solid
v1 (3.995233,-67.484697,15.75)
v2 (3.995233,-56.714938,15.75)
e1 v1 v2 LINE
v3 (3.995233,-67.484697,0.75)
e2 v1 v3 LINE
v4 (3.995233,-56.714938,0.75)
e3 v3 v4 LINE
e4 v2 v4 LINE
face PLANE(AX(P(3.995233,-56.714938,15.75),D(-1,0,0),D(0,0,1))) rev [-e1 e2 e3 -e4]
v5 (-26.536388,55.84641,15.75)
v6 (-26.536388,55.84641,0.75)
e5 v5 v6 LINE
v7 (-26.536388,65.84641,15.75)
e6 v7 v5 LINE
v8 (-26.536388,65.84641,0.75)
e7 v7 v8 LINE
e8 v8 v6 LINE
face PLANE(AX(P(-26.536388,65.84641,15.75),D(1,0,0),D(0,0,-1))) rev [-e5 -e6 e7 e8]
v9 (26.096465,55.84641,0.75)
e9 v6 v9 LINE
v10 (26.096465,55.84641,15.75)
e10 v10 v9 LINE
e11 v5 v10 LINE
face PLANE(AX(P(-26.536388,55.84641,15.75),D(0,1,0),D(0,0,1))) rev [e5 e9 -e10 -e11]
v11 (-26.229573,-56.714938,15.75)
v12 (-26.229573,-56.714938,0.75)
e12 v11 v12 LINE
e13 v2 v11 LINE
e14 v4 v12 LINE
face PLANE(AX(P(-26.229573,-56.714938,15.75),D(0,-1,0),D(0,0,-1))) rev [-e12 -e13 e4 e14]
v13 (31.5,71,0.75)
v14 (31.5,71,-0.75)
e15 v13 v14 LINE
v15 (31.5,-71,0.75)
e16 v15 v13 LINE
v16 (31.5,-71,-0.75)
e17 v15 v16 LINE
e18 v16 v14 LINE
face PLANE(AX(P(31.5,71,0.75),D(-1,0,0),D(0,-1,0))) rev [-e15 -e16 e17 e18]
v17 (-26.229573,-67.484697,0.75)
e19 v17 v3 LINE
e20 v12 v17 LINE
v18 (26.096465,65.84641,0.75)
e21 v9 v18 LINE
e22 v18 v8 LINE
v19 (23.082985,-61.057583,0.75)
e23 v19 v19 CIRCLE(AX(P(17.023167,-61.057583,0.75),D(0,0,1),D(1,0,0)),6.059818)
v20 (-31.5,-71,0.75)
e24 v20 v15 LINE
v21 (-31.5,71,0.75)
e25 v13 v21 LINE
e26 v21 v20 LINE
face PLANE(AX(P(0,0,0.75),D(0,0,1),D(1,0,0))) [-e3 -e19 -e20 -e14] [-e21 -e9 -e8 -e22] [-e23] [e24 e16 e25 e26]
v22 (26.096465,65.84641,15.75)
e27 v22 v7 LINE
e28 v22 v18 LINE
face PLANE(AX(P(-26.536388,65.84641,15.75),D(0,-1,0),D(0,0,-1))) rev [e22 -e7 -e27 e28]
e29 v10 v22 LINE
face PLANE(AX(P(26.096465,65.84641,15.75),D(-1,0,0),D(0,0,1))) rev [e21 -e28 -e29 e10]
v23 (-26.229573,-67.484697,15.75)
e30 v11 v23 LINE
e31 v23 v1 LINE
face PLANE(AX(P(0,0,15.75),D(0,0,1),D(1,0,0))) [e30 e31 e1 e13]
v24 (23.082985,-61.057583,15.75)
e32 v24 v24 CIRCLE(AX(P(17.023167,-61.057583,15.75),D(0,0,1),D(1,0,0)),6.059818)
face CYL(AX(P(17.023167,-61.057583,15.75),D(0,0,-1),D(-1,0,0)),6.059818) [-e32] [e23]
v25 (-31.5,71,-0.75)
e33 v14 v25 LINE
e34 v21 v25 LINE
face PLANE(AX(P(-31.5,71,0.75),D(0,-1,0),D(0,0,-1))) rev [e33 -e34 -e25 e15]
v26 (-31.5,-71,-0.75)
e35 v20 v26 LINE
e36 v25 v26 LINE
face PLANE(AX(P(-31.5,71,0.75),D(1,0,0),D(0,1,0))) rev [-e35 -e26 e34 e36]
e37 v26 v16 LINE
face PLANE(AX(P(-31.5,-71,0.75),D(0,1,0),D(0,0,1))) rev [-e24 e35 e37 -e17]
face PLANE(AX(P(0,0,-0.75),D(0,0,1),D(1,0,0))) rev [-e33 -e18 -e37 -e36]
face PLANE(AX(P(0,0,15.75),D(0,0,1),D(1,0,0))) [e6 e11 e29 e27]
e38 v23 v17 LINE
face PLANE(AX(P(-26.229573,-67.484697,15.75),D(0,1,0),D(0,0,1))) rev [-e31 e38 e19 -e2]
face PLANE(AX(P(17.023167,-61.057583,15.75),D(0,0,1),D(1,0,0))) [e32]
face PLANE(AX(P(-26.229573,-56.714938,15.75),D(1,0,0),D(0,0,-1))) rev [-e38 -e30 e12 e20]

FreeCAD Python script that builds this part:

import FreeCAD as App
import Part
import Sketcher
from FreeCAD import Vector


def add_polygon(sketch, points):
    """Adds a closed chain of lines whose ends are joined by coincident constraints."""
    first, n = sketch.GeometryCount, len(points)
    for a, b in zip(points, points[1:] + points[:1]):
        sketch.addGeometry(Part.LineSegment(App.Vector(*a, 0), App.Vector(*b, 0)), False)
    for i in range(n):
        sketch.addConstraint(Sketcher.Constraint("Coincident", first + i, 2, first + (i + 1) % n, 1))

doc = App.newDocument("Part")
body = doc.addObject("PartDesign::Body", "Body")

# Sketch on XY plane
sketch1 = body.newObject("Sketcher::SketchObject", "Sketch")
sketch1.AttachmentSupport = (doc.getObject("XY_Plane"), [""])
sketch1.MapMode = "FlatFace"
add_polygon(sketch1, [(-32, 71), (-32, -71), (32, -71), (32, 71)])  # lines 0-3
sketch1.addConstraint([
    Sketcher.Constraint("Vertical", 0),
    Sketcher.Constraint("Horizontal", 1),
    Sketcher.Constraint("Vertical", 2),
    Sketcher.Constraint("Horizontal", 3),
    Sketcher.Constraint("Symmetric", 0, 2, 2, 2, -1, 1),
    Sketcher.Constraint("DistanceX", 1, 1, 1, 2, 63.0),
    Sketcher.Constraint("DistanceY", 0, 2, 0, 1, 142.0),
])
pad1 = body.newObject("PartDesign::Pad", "Pad")
pad1.Profile = sketch1
pad1.Length = 1.5
pad1.Midplane = True

# Sketch on XY plane
sketch2 = body.newObject("Sketcher::SketchObject", "Sketch001")
sketch2.AttachmentSupport = (doc.getObject("XY_Plane"), [""])
sketch2.MapMode = "FlatFace"
sketch2.AttachmentOffset = App.Placement(Vector(0, 0, 0.75), App.Rotation())
add_polygon(sketch2, [(-27, 66), (-27, 56), (26, 56), (26, 66)])  # lines 0-3
sketch2.addConstraint([
    Sketcher.Constraint("Vertical", 0),
    Sketcher.Constraint("Horizontal", 1),
    Sketcher.Constraint("Vertical", 2),
    Sketcher.Constraint("Horizontal", 3),
    Sketcher.Constraint("DistanceY", 0, 2, 0, 1, 10.0),
    Sketcher.Constraint("DistanceX", 1, 1, 1, 2, 52.632853),
    Sketcher.Constraint("DistanceY", -1, 1, 0, 2, 55.84641),
    Sketcher.Constraint("DistanceX", 0, 2, -1, 1, 26.536388),
])
pad2 = body.newObject("PartDesign::Pad", "Pad001")
pad2.Profile = sketch2
pad2.Length = 15

# Sketch on XY plane
sketch3 = body.newObject("Sketcher::SketchObject", "Sketch002")
sketch3.AttachmentSupport = (doc.getObject("XY_Plane"), [""])
sketch3.MapMode = "FlatFace"
sketch3.AttachmentOffset = App.Placement(Vector(0, 0, 0.75), App.Rotation())
sketch3.addGeometry(Part.Circle(Vector(17, -61, 0), Vector(0, 0, 1), 6), False)  # 0
add_polygon(sketch3, [(-26, -57), (-26, -67), (4, -67), (4, -57)])  # lines 1-4
sketch3.addConstraint([
    Sketcher.Constraint("Vertical", 1),
    Sketcher.Constraint("Horizontal", 2),
    Sketcher.Constraint("Vertical", 3),
    Sketcher.Constraint("Horizontal", 4),
    Sketcher.Constraint("Diameter", 0, 12.119636),
    Sketcher.Constraint("DistanceY", 1, 2, 1, 1, 10.769759),
    Sketcher.Constraint("DistanceX", 2, 1, 2, 2, 30.224806),
    Sketcher.Constraint("DistanceY", 3, 2, -1, 1, 56.714938),
    Sketcher.Constraint("DistanceX", 1, 2, 0, 3, 43.25274),
    Sketcher.Constraint("DistanceX", -1, 1, 0, 3, 17.023167),
    Sketcher.Constraint("DistanceY", 0, 3, -1, 1, 61.057583),
])
pad3 = body.newObject("PartDesign::Pad", "Pad002")
pad3.Profile = sketch3
pad3.Length = 15

doc.recompute()
